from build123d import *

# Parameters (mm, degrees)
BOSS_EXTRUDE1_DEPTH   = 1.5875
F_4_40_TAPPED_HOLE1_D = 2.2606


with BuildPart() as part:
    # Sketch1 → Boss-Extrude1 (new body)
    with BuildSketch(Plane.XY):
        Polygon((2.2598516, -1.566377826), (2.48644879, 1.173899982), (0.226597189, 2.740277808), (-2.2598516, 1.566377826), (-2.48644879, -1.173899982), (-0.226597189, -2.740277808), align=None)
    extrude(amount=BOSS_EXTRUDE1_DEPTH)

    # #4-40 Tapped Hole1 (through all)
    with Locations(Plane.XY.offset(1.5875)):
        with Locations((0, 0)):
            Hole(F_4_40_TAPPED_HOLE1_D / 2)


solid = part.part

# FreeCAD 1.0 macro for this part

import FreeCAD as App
import Part
import Sketcher
Q = App.Units.Quantity


def add_polygon(sketch, points):
    """Adds a closed chain of lines whose ends are joined by coincident constraints."""
    first, n = sketch.GeometryCount, len(points)
    for a, b in zip(points, points[1:] + points[:1]):
        sketch.addGeometry(Part.LineSegment(App.Vector(*a, 0), App.Vector(*b, 0)), False)
    for i in range(n):
        sketch.addConstraint(Sketcher.Constraint("Coincident", first + i, 2, first + (i + 1) % n, 1))

doc = App.newDocument("Part")
body = doc.addObject("PartDesign::Body", "Body")

# Sketch on XY plane
sketch1 = body.newObject("Sketcher::SketchObject", "Sketch")
sketch1.AttachmentSupport = (doc.getObject("XY_Plane"), [""])
sketch1.MapMode = "FlatFace"
add_polygon(sketch1, [(2.259852, -1.566378), (2.486449, 1.1739), (0.226597, 2.740278), (-2.259852, 1.566378), (-2.486449, -1.1739), (-0.226597, -2.740278)])  # lines 0-5
sketch1.addConstraint(Sketcher.Constraint("Symmetric", 0, 2, 3, 2, -1, 1))
sketch1.addConstraint(Sketcher.Constraint("Symmetric", 1, 2, 4, 2, -1, 1))
sketch1.addConstraint(Sketcher.Constraint("Symmetric", 2, 2, 5, 2, -1, 1))
sketch1.addConstraint(Sketcher.Constraint("Equal", 0, 1))
sketch1.addConstraint(Sketcher.Constraint("Equal", 1, 2))
sketch1.addConstraint(Sketcher.Constraint("DistanceY", -1, 1, 0, 2, Q("1.1739 mm")))
sketch1.addConstraint(Sketcher.Constraint("DistanceY", 2, 2, 1, 2, Q("1.1739 mm")))
sketch1.addConstraint(Sketcher.Constraint("DistanceX", 2, 2, 0, 2, Q("4.7463 mm")))
sketch1.addConstraint(Sketcher.Constraint("Distance", 0, Q("2.749631 mm")))
pad1 = body.newObject("PartDesign::Pad", "Pad")
pad1.Profile = sketch1
pad1.Length = Q("0.0625 in")

# Sketch on XY plane
sketch2 = body.newObject("Sketcher::SketchObject", "Sketch001")
sketch2.AttachmentSupport = (doc.getObject("XY_Plane"), [""])
sketch2.MapMode = "FlatFace"
sketch2.AttachmentOffset = App.Placement(App.Vector(0, 0, 0.0625 * 25.4), App.Rotation())
sketch2.addGeometry(Part.Circle(App.Vector(0, 0, 0), App.Vector(0, 0, 1), 1.1303), False)
sketch2.addConstraint(Sketcher.Constraint("Coincident", 0, 3, -1, 1))
sketch2.addConstraint(Sketcher.Constraint("Diameter", 0, Q("0.089 in")))
doc.recompute()
hole = body.newObject("PartDesign::Hole", "Hole")
hole.Profile = sketch2
hole.ThreadType = "None"
hole.Diameter = Q("0.089 in")
hole.DepthType = "ThroughAll"

doc.recompute()
